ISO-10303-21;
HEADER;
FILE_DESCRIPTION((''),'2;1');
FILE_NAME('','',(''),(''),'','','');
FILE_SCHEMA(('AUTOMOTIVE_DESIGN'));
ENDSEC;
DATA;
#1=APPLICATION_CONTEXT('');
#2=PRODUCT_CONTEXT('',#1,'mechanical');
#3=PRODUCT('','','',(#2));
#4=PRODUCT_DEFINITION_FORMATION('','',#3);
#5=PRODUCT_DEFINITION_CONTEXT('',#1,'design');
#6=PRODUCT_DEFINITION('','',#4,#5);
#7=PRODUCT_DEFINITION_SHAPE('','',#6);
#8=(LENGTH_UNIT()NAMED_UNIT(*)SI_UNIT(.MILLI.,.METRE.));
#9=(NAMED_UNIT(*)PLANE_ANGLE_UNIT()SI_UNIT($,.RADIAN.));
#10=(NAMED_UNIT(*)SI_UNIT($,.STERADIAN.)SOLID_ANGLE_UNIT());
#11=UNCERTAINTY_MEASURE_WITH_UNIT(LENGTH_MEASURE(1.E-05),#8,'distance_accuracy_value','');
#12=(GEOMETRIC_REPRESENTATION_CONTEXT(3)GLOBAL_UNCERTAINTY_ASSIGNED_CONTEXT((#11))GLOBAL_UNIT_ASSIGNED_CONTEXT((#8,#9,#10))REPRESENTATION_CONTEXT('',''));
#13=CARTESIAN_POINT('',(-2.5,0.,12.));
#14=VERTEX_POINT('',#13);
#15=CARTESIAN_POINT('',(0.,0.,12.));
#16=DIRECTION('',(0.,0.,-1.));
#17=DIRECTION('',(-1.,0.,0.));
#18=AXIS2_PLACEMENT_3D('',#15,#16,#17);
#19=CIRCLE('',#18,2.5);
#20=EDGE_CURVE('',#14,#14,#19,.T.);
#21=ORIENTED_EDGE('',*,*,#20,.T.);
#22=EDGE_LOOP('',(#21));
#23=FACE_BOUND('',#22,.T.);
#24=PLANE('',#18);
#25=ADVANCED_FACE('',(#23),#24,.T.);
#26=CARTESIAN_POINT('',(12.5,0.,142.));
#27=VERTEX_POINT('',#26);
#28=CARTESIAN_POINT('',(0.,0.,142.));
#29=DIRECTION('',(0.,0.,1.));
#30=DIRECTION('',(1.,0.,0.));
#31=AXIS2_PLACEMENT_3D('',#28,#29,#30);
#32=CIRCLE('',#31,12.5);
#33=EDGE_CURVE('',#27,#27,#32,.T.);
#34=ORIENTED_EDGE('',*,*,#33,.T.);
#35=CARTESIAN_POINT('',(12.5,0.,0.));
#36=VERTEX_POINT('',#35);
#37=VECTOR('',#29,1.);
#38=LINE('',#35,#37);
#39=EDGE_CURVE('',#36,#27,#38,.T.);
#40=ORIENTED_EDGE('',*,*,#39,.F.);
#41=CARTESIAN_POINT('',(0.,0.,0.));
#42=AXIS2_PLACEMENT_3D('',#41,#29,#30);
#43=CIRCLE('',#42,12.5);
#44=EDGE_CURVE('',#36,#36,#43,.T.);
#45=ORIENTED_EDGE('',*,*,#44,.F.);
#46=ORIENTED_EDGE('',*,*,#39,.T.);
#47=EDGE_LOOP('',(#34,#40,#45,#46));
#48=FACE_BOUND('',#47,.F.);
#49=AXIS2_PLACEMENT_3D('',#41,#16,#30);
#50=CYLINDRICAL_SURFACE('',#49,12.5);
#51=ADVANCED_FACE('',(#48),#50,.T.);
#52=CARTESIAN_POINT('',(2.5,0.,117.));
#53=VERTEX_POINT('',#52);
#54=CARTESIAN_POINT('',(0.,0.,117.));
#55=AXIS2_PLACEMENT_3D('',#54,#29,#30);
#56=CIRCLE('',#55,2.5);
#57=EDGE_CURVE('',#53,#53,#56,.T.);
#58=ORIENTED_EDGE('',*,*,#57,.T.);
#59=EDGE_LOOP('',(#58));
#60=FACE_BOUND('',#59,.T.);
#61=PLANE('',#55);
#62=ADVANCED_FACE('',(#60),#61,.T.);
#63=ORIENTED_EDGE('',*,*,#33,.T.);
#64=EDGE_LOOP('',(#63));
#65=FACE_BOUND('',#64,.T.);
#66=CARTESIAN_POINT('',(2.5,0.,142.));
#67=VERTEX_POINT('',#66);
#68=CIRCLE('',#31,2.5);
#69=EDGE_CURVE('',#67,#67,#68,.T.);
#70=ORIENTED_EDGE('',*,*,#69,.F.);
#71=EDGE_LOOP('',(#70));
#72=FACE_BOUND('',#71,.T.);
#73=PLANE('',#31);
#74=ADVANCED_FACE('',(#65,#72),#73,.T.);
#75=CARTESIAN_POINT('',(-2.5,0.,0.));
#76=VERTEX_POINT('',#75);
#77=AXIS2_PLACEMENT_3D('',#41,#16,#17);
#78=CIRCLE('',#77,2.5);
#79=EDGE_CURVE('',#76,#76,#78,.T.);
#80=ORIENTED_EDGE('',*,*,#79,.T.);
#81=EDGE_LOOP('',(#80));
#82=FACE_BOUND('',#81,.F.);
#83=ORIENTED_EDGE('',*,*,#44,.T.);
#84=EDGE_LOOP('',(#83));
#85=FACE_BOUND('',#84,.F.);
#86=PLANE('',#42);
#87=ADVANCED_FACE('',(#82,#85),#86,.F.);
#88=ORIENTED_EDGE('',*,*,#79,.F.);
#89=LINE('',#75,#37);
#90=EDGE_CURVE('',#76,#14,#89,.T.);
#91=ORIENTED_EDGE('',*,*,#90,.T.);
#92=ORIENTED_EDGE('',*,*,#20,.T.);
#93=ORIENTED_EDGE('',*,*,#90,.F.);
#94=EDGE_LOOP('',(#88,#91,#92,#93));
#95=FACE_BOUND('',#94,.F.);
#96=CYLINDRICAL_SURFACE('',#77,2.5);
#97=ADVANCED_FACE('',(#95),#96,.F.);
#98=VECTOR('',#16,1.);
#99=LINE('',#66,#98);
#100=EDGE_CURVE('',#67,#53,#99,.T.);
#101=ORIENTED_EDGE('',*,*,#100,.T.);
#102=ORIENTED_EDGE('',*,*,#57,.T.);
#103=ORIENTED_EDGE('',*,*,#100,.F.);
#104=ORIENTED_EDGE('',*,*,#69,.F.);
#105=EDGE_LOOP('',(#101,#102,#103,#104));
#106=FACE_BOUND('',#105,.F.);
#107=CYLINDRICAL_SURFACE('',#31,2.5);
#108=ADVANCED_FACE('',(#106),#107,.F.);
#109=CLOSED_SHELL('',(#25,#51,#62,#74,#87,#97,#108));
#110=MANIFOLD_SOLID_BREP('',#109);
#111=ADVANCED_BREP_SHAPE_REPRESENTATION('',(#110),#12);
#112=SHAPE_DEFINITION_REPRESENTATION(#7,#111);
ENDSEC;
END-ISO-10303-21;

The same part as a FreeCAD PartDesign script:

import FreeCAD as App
import Part
import Sketcher
from FreeCAD import Vector

doc = App.newDocument("Part")
body = doc.addObject("PartDesign::Body", "Body")

sketch1 = body.newObject("Sketcher::SketchObject", "Sketch")
sketch1.AttachmentSupport = (doc.getObject("XY_Plane"), [""])
sketch1.MapMode = "FlatFace"
sketch1.addGeometry(Part.Circle(Vector(0, 0, 0), Vector(0, 0, 1), 12), False)
sketch1.addConstraint([
    Sketcher.Constraint("Coincident", 0, 3, -1, 1),
    Sketcher.Constraint("Diameter", 0, 25.0),
])
pad1 = body.newObject("PartDesign::Pad", "Pad")
pad1.Profile = sketch1
pad1.Length = 142

sketch2 = body.newObject("Sketcher::SketchObject", "Sketch001")
sketch2.AttachmentSupport = (doc.getObject("XY_Plane"), [""])
sketch2.MapMode = "FlatFace"
sketch2.addGeometry(Part.Circle(Vector(0, 0, 0), Vector(0, 0, 1), 2.5), False)
sketch2.addConstraint([
    Sketcher.Constraint("Coincident", 0, 3, -1, 1),
    Sketcher.Constraint("Diameter", 0, 5.0),
])
pocket1 = body.newObject("PartDesign::Pocket", "Pocket")
pocket1.Profile = sketch2
pocket1.Length = 12
pocket1.Reversed = True

sketch3 = body.newObject("Sketcher::SketchObject", "Sketch002")
sketch3.AttachmentSupport = (doc.getObject("XY_Plane"), [""])
sketch3.MapMode = "FlatFace"
sketch3.AttachmentOffset = App.Placement(Vector(0, 0, 142), App.Rotation())
sketch3.addGeometry(Part.Circle(Vector(0, 0, 0), Vector(0, 0, 1), 2.5), False)
sketch3.addConstraint([
    Sketcher.Constraint("Coincident", 0, 3, -1, 1),
    Sketcher.Constraint("Diameter", 0, 5.0),
])
pocket2 = body.newObject("PartDesign::Pocket", "Pocket001")
pocket2.Profile = sketch3
pocket2.Length = 25

doc.recompute()
